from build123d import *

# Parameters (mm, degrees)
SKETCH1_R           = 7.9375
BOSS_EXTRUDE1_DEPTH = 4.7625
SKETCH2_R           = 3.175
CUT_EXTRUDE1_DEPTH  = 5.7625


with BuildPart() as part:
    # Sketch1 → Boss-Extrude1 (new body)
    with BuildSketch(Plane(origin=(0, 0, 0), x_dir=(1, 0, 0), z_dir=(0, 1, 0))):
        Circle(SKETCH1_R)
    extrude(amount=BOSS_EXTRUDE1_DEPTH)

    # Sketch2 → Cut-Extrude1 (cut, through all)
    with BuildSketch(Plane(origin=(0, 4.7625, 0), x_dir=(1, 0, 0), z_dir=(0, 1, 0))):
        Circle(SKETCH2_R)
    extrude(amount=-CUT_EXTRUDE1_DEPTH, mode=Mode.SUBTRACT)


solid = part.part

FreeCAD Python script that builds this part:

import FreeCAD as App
import Part
import Sketcher
from FreeCAD import Vector
Q = App.Units.Quantity

doc = App.newDocument("Part")
body = doc.addObject("PartDesign::Body", "Body")

sketch1 = doc.addObject("Sketcher::SketchObject", "Sketch")
body.addObject(sketch1)
sketch1.AttachmentSupport = (doc.XZ_Plane, [""])
sketch1.MapMode = "FlatFace"
sketch1.addGeometry(Part.Circle(Vector(0, 0, 0), Vector(0, 0, 1), 7.9375), False)
sketch1.addConstraint(Sketcher.Constraint("Coincident", 0, 3, -1, 1))
sketch1.addConstraint(Sketcher.Constraint("Diameter", 0, Q("0.625 in")))
pad1 = doc.addObject("PartDesign::Pad", "Pad")
body.addObject(pad1)
pad1.Profile = sketch1
pad1.Length = Q("0.1875 in")
pad1.Reversed = True

sketch2 = doc.addObject("Sketcher::SketchObject", "Sketch001")
body.addObject(sketch2)
sketch2.AttachmentSupport = (doc.XZ_Plane, [""])
sketch2.MapMode = "FlatFace"
sketch2.AttachmentOffset = App.Placement(Vector(0, 0, -0.1875 * 25.4), App.Rotation())
sketch2.addGeometry(Part.Circle(Vector(0, 0, 0), Vector(0, 0, 1), 3.175), False)
sketch2.addConstraint(Sketcher.Constraint("Coincident", 0, 3, -1, 1))
sketch2.addConstraint(Sketcher.Constraint("Diameter", 0, Q("0.25 in")))
pocket1 = doc.addObject("PartDesign::Pocket", "Pocket")
body.addObject(pocket1)
pocket1.Profile = sketch2
pocket1.Type = "ThroughAll"
pocket1.Reversed = True

doc.recompute()
